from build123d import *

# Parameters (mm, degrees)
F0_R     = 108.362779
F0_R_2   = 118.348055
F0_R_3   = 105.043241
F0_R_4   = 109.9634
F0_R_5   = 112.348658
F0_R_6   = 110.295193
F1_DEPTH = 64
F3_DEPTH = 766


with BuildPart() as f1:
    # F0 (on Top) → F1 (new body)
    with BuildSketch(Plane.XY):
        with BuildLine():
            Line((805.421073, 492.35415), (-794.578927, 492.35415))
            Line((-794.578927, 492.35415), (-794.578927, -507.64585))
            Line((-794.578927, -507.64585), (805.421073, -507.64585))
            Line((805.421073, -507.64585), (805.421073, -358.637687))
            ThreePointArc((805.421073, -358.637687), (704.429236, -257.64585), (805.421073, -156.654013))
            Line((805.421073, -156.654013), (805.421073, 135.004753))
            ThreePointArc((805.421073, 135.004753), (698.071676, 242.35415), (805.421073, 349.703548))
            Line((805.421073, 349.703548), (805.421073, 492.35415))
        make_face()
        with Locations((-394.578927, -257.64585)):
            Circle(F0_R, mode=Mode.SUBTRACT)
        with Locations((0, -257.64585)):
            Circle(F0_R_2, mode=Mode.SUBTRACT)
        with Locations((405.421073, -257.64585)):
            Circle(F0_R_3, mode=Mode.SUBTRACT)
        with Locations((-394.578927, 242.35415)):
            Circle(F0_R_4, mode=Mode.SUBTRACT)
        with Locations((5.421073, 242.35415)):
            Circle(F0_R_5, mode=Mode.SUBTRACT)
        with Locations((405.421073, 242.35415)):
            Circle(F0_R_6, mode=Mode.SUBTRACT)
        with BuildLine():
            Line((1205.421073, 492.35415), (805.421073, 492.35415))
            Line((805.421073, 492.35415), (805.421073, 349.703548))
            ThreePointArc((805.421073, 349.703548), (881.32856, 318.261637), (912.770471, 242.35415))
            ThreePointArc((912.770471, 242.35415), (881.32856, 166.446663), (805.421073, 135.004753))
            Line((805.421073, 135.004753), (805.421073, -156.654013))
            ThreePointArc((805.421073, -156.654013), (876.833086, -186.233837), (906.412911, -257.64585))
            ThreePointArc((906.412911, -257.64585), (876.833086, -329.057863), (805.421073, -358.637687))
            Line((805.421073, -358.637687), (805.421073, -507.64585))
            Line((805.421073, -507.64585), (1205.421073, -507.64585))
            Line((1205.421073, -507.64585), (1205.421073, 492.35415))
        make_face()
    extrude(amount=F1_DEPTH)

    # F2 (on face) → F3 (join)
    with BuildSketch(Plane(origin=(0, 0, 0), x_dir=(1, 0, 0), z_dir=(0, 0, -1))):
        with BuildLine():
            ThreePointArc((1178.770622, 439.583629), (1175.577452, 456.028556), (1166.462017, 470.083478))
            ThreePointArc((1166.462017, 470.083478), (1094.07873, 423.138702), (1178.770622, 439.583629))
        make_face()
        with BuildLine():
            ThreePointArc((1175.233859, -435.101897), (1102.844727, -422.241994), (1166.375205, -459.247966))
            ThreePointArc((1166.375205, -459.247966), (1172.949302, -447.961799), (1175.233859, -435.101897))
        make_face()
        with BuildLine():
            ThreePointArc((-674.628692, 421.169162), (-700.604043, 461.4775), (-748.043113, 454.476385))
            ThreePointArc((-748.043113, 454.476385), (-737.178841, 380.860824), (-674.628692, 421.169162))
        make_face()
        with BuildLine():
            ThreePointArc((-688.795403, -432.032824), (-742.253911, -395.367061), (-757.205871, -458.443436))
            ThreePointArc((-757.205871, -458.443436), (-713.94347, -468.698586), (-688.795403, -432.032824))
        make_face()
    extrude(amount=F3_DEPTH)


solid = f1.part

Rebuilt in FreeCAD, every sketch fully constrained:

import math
import FreeCAD as App
import Part
import Sketcher
from FreeCAD import Vector

doc = App.newDocument("Part")
body = doc.addObject("PartDesign::Body", "Body")

sketch1 = body.newObject("Sketcher::SketchObject", "Sketch")
sketch1.AttachmentSupport = (doc.getObject("XY_Plane"), [""])
sketch1.MapMode = "FlatFace"
sketch1.addGeometry([
    Part.LineSegment(Vector(-795, 492, 0), Vector(-795, -508, 0)),
    Part.LineSegment(Vector(-795, -508, 0), Vector(1205, -508, 0)),
    Part.LineSegment(Vector(1205, -508, 0), Vector(1205, 492, 0)),
    Part.LineSegment(Vector(1205, 492, 0), Vector(-795, 492, 0)),
    Part.ArcOfCircle(Part.Circle(Vector(805, 242, 0), Vector(0, 0, 1), 107), math.radians(90), math.radians(270)),
    Part.ArcOfCircle(Part.Circle(Vector(805, 242, 0), Vector(0, 0, 1), 107), math.radians(0), math.radians(90)),
    Part.ArcOfCircle(Part.Circle(Vector(805, 242, 0), Vector(0, 0, 1), 107), math.radians(-90), math.radians(0)),
    Part.ArcOfCircle(Part.Circle(Vector(805, -258, 0), Vector(0, 0, 1), 101), math.radians(90), math.radians(270)),
    Part.ArcOfCircle(Part.Circle(Vector(805, -258, 0), Vector(0, 0, 1), 101), math.radians(0), math.radians(90)),
    Part.ArcOfCircle(Part.Circle(Vector(805, -258, 0), Vector(0, 0, 1), 101), math.radians(-90), math.radians(0)),
    Part.Circle(Vector(-395, -258, 0), Vector(0, 0, 1), 108),
    Part.Circle(Vector(0, -258, 0), Vector(0, 0, 1), 118),
    Part.Circle(Vector(405, -258, 0), Vector(0, 0, 1), 105),
    Part.Circle(Vector(-395, 242, 0), Vector(0, 0, 1), 110),
    Part.Circle(Vector(5, 242, 0), Vector(0, 0, 1), 112),
    Part.Circle(Vector(405, 242, 0), Vector(0, 0, 1), 110),
], False)
sketch1.addConstraint([
    Sketcher.Constraint("Coincident", 0, 2, 1, 1),
    Sketcher.Constraint("Coincident", 1, 2, 2, 1),
    Sketcher.Constraint("Coincident", 2, 2, 3, 1),
    Sketcher.Constraint("Coincident", 3, 2, 0, 1),
    Sketcher.Constraint("Tangent", 4, 1, 5, 2),
    Sketcher.Constraint("Tangent", 5, 1, 6, 2),
    Sketcher.Constraint("Tangent", 6, 1, 4, 2),
    Sketcher.Constraint("Tangent", 7, 1, 8, 2),
    Sketcher.Constraint("Tangent", 8, 1, 9, 2),
    Sketcher.Constraint("Tangent", 9, 1, 7, 2),
    Sketcher.Constraint("Vertical", 0),
    Sketcher.Constraint("Horizontal", 1),
    Sketcher.Constraint("Vertical", 2),
    Sketcher.Constraint("Horizontal", 3),
    Sketcher.Constraint("PointOnObject", 11, 3, -2),
    Sketcher.Constraint("Horizontal", 9, 3, 10, 3),
    Sketcher.Constraint("Horizontal", 10, 3, 11, 3),
    Sketcher.Constraint("Horizontal", 11, 3, 12, 3),
    Sketcher.Constraint("Horizontal", 6, 3, 13, 3),
    Sketcher.Constraint("Horizontal", 13, 3, 14, 3),
    Sketcher.Constraint("Horizontal", 14, 3, 15, 3),
    Sketcher.Constraint("Horizontal", 15, 3, 5, 1),
    Sketcher.Constraint("Horizontal", 12, 3, 8, 1),
    Sketcher.Constraint("Vertical", 6, 3, 7, 3),
    Sketcher.Constraint("Vertical", 10, 3, 13, 3),
    Sketcher.Constraint("Vertical", 12, 3, 15, 3),
    Sketcher.Constraint("Vertical", 9, 3, 4, 1),
    Sketcher.Constraint("Vertical", 4, 1, 6, 1),
    Sketcher.Constraint("Vertical", 6, 1, 7, 1),
    Sketcher.Constraint("Vertical", 7, 1, 9, 1),
    Sketcher.Constraint("DistanceX", 1, 1, 1, 2, 2000.0),
    Sketcher.Constraint("DistanceY", 0, 2, 0, 1, 1000.0),
    Sketcher.Constraint("DistanceY", 7, 3, 5, 3, 499.999999),
    Sketcher.Constraint("DistanceX", 10, 3, 7, 3, 1200.0),
    Sketcher.Constraint("DistanceX", 12, 3, 7, 3, 400.0),
    Sketcher.Constraint("DistanceX", 13, 3, 14, 3, 400.0),
    Sketcher.Constraint("DistanceX", 0, 2, 10, 3, 400.0),
    Sketcher.Constraint("DistanceY", 0, 2, 10, 3, 250.0),
    Sketcher.Constraint("Diameter", 13, 219.9268),
    Sketcher.Constraint("Radius", 5, 107.349399),
    Sketcher.Constraint("Diameter", 10, 216.725558),
    Sketcher.Constraint("Diameter", 11, 236.69611),
    Sketcher.Constraint("Diameter", 12, 210.086482),
    Sketcher.Constraint("Diameter", 14, 224.697316),
    Sketcher.Constraint("Diameter", 15, 220.590386),
    Sketcher.Constraint("Radius", 7, 100.991837),
    Sketcher.Constraint("DistanceY", -1, 1, 4, 3, 242.354151),
    Sketcher.Constraint("DistanceX", -1, 1, 5, 1, 912.770471),
])
pad1 = body.newObject("PartDesign::Pad", "Pad")
pad1.Profile = sketch1
pad1.Length = 64

sketch2 = body.newObject("Sketcher::SketchObject", "Sketch001")
sketch2.AttachmentSupport = (doc.getObject("XY_Plane"), [""])
sketch2.MapMode = "FlatFace"
sketch2.addGeometry([
    Part.ArcOfCircle(Part.Circle(Vector(1135, -440, 0), Vector(0, 0, 1), 44), math.radians(-44), math.radians(0)),
    Part.ArcOfCircle(Part.Circle(Vector(1135, -440, 0), Vector(0, 0, 1), 44), math.radians(0), math.radians(316)),
    Part.ArcOfCircle(Part.Circle(Vector(1138, 435, 0), Vector(0, 0, 1), 37), math.radians(40), math.radians(360)),
    Part.ArcOfCircle(Part.Circle(Vector(1138, 435, 0), Vector(0, 0, 1), 37), math.radians(0), math.radians(40)),
    Part.ArcOfCircle(Part.Circle(Vector(-719, -421, 0), Vector(0, 0, 1), 44), math.radians(-131), math.radians(0)),
    Part.ArcOfCircle(Part.Circle(Vector(-719, -421, 0), Vector(0, 0, 1), 44), math.radians(0), math.radians(229)),
    Part.ArcOfCircle(Part.Circle(Vector(-728, 432, 0), Vector(0, 0, 1), 39), math.radians(138), math.radians(360)),
    Part.ArcOfCircle(Part.Circle(Vector(-728, 432, 0), Vector(0, 0, 1), 39), math.radians(0), math.radians(138)),
], False)
sketch2.addConstraint([
    Sketcher.Constraint("Tangent", 0, 1, 1, 2),
    Sketcher.Constraint("Coincident", 1, 1, 0, 2),
    Sketcher.Constraint("Tangent", 2, 1, 3, 2),
    Sketcher.Constraint("Coincident", 3, 1, 2, 2),
    Sketcher.Constraint("Tangent", 4, 1, 5, 2),
    Sketcher.Constraint("Coincident", 5, 1, 4, 2),
    Sketcher.Constraint("Tangent", 6, 1, 7, 2),
    Sketcher.Constraint("Coincident", 7, 1, 6, 2),
    Sketcher.Constraint("Horizontal", 0, 3, 1, 1),
    Sketcher.Constraint("Horizontal", 2, 3, 3, 1),
    Sketcher.Constraint("Horizontal", 4, 3, 5, 1),
    Sketcher.Constraint("Horizontal", 6, 3, 7, 1),
    Sketcher.Constraint("Radius", 0, 43.942531),
    Sketcher.Constraint("Radius", 3, 37.336851),
    Sketcher.Constraint("Radius", 4, 44.26275),
    Sketcher.Constraint("DistanceX", 7, 3, 5, 1, 53.469999),
    Sketcher.Constraint("Radius", 6, 39.303288),
    Sketcher.Constraint("DistanceX", 6, 3, 3, 3, 1865.995698),
    Sketcher.Constraint("DistanceY", 4, 3, 6, 1, 879.612599),
    Sketcher.Constraint("DistanceX", -1, 1, 0, 3, 1134.828091),
    Sketcher.Constraint("DistanceY", 0, 3, -1, 1, 439.583629),
    Sketcher.Constraint("DistanceX", 4, 3, -1, 1, 718.891442),
    Sketcher.Constraint("DistanceY", 5, 3, -1, 1, 421.169162),
    Sketcher.Constraint("DistanceY", 0, 1, -1, 1, 470.083478),
    Sketcher.Constraint("DistanceX", 6, 1, -1, 1, 757.205871),
    Sketcher.Constraint("DistanceY", 4, 3, 2, 3, 856.27106),
    Sketcher.Constraint("DistanceX", 2, 3, 2, 1, 28.478191),
    Sketcher.Constraint("DistanceX", 4, 1, 4, 3, 29.151671),
])
pad2 = body.newObject("PartDesign::Pad", "Pad001")
pad2.Profile = sketch2
pad2.Length = 766
pad2.Reversed = True

doc.recompute()
